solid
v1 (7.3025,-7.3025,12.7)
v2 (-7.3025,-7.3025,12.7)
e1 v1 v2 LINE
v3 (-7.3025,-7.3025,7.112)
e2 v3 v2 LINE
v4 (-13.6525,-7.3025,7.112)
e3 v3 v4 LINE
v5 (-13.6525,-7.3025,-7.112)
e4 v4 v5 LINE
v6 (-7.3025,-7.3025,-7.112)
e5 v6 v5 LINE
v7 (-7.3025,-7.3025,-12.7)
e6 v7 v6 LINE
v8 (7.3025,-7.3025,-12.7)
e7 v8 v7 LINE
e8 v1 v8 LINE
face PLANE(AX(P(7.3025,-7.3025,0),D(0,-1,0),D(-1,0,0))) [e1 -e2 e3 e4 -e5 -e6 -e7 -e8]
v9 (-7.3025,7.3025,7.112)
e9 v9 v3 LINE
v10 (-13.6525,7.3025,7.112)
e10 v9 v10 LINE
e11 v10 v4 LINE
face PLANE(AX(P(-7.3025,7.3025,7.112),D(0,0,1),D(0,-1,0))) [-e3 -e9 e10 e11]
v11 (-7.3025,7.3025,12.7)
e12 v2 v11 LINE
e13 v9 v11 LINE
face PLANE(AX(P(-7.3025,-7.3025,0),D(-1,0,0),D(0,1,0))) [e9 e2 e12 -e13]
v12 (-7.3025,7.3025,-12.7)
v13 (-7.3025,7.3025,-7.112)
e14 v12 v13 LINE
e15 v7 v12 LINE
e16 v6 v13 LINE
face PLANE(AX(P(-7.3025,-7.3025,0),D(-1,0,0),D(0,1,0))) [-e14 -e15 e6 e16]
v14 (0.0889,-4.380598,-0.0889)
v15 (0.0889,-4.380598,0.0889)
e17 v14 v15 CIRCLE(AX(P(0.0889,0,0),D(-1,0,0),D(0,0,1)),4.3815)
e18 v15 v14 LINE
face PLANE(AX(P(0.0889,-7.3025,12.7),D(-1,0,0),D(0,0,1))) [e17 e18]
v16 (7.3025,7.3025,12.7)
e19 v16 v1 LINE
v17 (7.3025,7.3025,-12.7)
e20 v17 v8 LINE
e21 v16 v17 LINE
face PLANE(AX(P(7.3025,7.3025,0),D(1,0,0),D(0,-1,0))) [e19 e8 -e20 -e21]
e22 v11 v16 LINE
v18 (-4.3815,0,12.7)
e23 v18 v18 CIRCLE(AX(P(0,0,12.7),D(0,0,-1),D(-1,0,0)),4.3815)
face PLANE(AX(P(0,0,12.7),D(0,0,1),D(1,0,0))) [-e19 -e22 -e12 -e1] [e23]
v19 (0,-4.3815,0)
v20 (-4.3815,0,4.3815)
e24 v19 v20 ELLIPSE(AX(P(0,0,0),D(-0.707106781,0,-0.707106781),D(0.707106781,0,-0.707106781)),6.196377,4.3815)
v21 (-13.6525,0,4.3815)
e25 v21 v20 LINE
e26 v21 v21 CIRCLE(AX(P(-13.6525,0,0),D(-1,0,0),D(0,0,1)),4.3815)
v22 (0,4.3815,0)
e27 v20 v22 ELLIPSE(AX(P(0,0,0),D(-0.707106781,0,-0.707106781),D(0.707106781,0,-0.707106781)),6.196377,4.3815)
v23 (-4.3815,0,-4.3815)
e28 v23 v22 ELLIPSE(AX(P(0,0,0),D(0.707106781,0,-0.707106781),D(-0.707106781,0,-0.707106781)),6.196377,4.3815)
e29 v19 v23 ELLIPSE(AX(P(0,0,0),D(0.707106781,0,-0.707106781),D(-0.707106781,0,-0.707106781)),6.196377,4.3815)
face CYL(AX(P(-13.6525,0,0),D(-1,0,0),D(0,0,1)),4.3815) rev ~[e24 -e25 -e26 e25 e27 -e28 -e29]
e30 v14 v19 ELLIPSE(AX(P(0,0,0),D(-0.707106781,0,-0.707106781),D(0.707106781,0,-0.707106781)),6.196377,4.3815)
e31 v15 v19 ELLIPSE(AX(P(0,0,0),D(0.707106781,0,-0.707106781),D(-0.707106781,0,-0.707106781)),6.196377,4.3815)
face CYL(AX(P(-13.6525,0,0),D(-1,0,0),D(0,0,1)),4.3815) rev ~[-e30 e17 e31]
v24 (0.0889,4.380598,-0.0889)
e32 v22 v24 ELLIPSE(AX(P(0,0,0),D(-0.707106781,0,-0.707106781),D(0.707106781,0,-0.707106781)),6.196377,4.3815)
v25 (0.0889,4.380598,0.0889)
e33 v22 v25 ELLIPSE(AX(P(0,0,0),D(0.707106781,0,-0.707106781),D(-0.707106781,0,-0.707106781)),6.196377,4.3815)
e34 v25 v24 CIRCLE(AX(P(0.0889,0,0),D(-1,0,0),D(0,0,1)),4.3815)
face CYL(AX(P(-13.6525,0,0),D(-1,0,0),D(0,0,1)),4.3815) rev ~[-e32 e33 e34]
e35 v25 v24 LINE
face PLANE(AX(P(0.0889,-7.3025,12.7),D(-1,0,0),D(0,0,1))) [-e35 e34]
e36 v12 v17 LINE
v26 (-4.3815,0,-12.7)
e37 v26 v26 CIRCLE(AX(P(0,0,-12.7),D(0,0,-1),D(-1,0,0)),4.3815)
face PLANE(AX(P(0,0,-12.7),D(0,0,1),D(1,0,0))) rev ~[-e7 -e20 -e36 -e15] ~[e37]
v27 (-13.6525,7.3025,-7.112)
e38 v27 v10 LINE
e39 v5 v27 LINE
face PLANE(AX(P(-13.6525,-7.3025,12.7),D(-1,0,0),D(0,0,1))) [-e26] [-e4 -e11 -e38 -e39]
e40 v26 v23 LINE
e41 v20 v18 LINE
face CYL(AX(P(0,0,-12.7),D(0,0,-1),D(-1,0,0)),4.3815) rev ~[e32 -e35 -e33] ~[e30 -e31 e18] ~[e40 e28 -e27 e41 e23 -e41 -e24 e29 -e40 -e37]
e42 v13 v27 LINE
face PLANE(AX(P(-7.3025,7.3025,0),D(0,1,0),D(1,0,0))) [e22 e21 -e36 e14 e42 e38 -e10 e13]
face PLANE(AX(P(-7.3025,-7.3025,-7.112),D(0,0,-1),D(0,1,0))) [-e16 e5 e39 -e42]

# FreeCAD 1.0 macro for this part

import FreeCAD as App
import Part
import Sketcher

V = App.Vector
Q = App.Units.Quantity


def add_polygon(sketch, points):
    """Adds a closed chain of lines whose ends are joined by coincident constraints."""
    first, n = sketch.GeometryCount, len(points)
    for a, b in zip(points, points[1:] + points[:1]):
        sketch.addGeometry(Part.LineSegment(App.Vector(*a, 0), App.Vector(*b, 0)), False)
    for i in range(n):
        sketch.addConstraint(Sketcher.Constraint("Coincident", first + i, 2, first + (i + 1) % n, 1))

doc = App.newDocument("Part")
body = doc.addObject("PartDesign::Body", "Body")

# Sketch on XY plane
sketch1 = body.newObject("Sketcher::SketchObject", "Sketch")
sketch1.AttachmentSupport = (doc.getObject("XY_Plane"), [""])
sketch1.MapMode = "FlatFace"
add_polygon(sketch1, [(7, 7), (-7, 7), (-7, -7), (7, -7)])  # lines 0-3
sketch1.addConstraint([
    Sketcher.Constraint("Horizontal", 0),
    Sketcher.Constraint("Vertical", 1),
    Sketcher.Constraint("Horizontal", 2),
    Sketcher.Constraint("Vertical", 3),
    Sketcher.Constraint("Symmetric", 0, 2, 2, 2, -1, 1),
    Sketcher.Constraint("Equal", 2, 1),
    Sketcher.Constraint("DistanceX", 0, 2, 0, 1, Q("0.575 in")),
])
pad1 = body.newObject("PartDesign::Pad", "Pad")
pad1.Profile = sketch1
pad1.Length = Q("1 in")
pad1.Midplane = True

# Sketch on YZ plane
sketch2 = body.newObject("Sketcher::SketchObject", "Sketch001")
sketch2.AttachmentSupport = (doc.getObject("YZ_Plane"), [""])
sketch2.MapMode = "FlatFace"
sketch2.AttachmentOffset = App.Placement(V(0, 0, -0.2875 * 25.4), App.Rotation())
add_polygon(sketch2, [(-7, -7), (-7, 7), (7, 7), (7, -7)])  # lines 0-3
sketch2.addConstraint([
    Sketcher.Constraint("Vertical", 0),
    Sketcher.Constraint("Horizontal", 1),
    Sketcher.Constraint("Vertical", 2),
    Sketcher.Constraint("Horizontal", 3),
    Sketcher.Constraint("Symmetric", 0, 2, 2, 2, -1, 1),
    Sketcher.Constraint("DistanceY", 0, 1, 0, 2, Q("0.56 in")),
    Sketcher.Constraint("DistanceX", 1, 1, 1, 2, Q("0.575 in")),
])
pad2 = body.newObject("PartDesign::Pad", "Pad001")
pad2.Profile = sketch2
pad2.Length = Q("0.25 in")
pad2.Reversed = True

# Sketch on XY plane
sketch3 = body.newObject("Sketcher::SketchObject", "Sketch002")
sketch3.AttachmentSupport = (doc.getObject("XY_Plane"), [""])
sketch3.MapMode = "FlatFace"
sketch3.AttachmentOffset = App.Placement(V(0, 0, -0.5 * 25.4), App.Rotation())
sketch3.addGeometry(Part.Circle(V(0, 0, 0), V(0, 0, 1), 4.4), False)
sketch3.addConstraint([
    Sketcher.Constraint("Coincident", 0, 3, -1, 1),
    Sketcher.Constraint("Diameter", 0, Q("0.345 in")),
])
pocket1 = body.newObject("PartDesign::Pocket", "Pocket")
pocket1.Profile = sketch3
pocket1.Type = "ThroughAll"
pocket1.Reversed = True

# Sketch on YZ plane
sketch4 = body.newObject("Sketcher::SketchObject", "Sketch003")
sketch4.AttachmentSupport = (doc.getObject("YZ_Plane"), [""])
sketch4.MapMode = "FlatFace"
sketch4.AttachmentOffset = App.Placement(V(0, 0, -0.5375 * 25.4), App.Rotation())
sketch4.addGeometry(Part.Circle(V(0, 0, 0), V(0, 0, 1), 4.4), False)
sketch4.addConstraint([
    Sketcher.Constraint("Coincident", 0, 3, -1, 1),
    Sketcher.Constraint("Diameter", 0, Q("0.345 in")),
])
pocket2 = body.newObject("PartDesign::Pocket", "Pocket001")
pocket2.Profile = sketch4
pocket2.Length = Q("0.541 in")
pocket2.Reversed = True

doc.recompute()
